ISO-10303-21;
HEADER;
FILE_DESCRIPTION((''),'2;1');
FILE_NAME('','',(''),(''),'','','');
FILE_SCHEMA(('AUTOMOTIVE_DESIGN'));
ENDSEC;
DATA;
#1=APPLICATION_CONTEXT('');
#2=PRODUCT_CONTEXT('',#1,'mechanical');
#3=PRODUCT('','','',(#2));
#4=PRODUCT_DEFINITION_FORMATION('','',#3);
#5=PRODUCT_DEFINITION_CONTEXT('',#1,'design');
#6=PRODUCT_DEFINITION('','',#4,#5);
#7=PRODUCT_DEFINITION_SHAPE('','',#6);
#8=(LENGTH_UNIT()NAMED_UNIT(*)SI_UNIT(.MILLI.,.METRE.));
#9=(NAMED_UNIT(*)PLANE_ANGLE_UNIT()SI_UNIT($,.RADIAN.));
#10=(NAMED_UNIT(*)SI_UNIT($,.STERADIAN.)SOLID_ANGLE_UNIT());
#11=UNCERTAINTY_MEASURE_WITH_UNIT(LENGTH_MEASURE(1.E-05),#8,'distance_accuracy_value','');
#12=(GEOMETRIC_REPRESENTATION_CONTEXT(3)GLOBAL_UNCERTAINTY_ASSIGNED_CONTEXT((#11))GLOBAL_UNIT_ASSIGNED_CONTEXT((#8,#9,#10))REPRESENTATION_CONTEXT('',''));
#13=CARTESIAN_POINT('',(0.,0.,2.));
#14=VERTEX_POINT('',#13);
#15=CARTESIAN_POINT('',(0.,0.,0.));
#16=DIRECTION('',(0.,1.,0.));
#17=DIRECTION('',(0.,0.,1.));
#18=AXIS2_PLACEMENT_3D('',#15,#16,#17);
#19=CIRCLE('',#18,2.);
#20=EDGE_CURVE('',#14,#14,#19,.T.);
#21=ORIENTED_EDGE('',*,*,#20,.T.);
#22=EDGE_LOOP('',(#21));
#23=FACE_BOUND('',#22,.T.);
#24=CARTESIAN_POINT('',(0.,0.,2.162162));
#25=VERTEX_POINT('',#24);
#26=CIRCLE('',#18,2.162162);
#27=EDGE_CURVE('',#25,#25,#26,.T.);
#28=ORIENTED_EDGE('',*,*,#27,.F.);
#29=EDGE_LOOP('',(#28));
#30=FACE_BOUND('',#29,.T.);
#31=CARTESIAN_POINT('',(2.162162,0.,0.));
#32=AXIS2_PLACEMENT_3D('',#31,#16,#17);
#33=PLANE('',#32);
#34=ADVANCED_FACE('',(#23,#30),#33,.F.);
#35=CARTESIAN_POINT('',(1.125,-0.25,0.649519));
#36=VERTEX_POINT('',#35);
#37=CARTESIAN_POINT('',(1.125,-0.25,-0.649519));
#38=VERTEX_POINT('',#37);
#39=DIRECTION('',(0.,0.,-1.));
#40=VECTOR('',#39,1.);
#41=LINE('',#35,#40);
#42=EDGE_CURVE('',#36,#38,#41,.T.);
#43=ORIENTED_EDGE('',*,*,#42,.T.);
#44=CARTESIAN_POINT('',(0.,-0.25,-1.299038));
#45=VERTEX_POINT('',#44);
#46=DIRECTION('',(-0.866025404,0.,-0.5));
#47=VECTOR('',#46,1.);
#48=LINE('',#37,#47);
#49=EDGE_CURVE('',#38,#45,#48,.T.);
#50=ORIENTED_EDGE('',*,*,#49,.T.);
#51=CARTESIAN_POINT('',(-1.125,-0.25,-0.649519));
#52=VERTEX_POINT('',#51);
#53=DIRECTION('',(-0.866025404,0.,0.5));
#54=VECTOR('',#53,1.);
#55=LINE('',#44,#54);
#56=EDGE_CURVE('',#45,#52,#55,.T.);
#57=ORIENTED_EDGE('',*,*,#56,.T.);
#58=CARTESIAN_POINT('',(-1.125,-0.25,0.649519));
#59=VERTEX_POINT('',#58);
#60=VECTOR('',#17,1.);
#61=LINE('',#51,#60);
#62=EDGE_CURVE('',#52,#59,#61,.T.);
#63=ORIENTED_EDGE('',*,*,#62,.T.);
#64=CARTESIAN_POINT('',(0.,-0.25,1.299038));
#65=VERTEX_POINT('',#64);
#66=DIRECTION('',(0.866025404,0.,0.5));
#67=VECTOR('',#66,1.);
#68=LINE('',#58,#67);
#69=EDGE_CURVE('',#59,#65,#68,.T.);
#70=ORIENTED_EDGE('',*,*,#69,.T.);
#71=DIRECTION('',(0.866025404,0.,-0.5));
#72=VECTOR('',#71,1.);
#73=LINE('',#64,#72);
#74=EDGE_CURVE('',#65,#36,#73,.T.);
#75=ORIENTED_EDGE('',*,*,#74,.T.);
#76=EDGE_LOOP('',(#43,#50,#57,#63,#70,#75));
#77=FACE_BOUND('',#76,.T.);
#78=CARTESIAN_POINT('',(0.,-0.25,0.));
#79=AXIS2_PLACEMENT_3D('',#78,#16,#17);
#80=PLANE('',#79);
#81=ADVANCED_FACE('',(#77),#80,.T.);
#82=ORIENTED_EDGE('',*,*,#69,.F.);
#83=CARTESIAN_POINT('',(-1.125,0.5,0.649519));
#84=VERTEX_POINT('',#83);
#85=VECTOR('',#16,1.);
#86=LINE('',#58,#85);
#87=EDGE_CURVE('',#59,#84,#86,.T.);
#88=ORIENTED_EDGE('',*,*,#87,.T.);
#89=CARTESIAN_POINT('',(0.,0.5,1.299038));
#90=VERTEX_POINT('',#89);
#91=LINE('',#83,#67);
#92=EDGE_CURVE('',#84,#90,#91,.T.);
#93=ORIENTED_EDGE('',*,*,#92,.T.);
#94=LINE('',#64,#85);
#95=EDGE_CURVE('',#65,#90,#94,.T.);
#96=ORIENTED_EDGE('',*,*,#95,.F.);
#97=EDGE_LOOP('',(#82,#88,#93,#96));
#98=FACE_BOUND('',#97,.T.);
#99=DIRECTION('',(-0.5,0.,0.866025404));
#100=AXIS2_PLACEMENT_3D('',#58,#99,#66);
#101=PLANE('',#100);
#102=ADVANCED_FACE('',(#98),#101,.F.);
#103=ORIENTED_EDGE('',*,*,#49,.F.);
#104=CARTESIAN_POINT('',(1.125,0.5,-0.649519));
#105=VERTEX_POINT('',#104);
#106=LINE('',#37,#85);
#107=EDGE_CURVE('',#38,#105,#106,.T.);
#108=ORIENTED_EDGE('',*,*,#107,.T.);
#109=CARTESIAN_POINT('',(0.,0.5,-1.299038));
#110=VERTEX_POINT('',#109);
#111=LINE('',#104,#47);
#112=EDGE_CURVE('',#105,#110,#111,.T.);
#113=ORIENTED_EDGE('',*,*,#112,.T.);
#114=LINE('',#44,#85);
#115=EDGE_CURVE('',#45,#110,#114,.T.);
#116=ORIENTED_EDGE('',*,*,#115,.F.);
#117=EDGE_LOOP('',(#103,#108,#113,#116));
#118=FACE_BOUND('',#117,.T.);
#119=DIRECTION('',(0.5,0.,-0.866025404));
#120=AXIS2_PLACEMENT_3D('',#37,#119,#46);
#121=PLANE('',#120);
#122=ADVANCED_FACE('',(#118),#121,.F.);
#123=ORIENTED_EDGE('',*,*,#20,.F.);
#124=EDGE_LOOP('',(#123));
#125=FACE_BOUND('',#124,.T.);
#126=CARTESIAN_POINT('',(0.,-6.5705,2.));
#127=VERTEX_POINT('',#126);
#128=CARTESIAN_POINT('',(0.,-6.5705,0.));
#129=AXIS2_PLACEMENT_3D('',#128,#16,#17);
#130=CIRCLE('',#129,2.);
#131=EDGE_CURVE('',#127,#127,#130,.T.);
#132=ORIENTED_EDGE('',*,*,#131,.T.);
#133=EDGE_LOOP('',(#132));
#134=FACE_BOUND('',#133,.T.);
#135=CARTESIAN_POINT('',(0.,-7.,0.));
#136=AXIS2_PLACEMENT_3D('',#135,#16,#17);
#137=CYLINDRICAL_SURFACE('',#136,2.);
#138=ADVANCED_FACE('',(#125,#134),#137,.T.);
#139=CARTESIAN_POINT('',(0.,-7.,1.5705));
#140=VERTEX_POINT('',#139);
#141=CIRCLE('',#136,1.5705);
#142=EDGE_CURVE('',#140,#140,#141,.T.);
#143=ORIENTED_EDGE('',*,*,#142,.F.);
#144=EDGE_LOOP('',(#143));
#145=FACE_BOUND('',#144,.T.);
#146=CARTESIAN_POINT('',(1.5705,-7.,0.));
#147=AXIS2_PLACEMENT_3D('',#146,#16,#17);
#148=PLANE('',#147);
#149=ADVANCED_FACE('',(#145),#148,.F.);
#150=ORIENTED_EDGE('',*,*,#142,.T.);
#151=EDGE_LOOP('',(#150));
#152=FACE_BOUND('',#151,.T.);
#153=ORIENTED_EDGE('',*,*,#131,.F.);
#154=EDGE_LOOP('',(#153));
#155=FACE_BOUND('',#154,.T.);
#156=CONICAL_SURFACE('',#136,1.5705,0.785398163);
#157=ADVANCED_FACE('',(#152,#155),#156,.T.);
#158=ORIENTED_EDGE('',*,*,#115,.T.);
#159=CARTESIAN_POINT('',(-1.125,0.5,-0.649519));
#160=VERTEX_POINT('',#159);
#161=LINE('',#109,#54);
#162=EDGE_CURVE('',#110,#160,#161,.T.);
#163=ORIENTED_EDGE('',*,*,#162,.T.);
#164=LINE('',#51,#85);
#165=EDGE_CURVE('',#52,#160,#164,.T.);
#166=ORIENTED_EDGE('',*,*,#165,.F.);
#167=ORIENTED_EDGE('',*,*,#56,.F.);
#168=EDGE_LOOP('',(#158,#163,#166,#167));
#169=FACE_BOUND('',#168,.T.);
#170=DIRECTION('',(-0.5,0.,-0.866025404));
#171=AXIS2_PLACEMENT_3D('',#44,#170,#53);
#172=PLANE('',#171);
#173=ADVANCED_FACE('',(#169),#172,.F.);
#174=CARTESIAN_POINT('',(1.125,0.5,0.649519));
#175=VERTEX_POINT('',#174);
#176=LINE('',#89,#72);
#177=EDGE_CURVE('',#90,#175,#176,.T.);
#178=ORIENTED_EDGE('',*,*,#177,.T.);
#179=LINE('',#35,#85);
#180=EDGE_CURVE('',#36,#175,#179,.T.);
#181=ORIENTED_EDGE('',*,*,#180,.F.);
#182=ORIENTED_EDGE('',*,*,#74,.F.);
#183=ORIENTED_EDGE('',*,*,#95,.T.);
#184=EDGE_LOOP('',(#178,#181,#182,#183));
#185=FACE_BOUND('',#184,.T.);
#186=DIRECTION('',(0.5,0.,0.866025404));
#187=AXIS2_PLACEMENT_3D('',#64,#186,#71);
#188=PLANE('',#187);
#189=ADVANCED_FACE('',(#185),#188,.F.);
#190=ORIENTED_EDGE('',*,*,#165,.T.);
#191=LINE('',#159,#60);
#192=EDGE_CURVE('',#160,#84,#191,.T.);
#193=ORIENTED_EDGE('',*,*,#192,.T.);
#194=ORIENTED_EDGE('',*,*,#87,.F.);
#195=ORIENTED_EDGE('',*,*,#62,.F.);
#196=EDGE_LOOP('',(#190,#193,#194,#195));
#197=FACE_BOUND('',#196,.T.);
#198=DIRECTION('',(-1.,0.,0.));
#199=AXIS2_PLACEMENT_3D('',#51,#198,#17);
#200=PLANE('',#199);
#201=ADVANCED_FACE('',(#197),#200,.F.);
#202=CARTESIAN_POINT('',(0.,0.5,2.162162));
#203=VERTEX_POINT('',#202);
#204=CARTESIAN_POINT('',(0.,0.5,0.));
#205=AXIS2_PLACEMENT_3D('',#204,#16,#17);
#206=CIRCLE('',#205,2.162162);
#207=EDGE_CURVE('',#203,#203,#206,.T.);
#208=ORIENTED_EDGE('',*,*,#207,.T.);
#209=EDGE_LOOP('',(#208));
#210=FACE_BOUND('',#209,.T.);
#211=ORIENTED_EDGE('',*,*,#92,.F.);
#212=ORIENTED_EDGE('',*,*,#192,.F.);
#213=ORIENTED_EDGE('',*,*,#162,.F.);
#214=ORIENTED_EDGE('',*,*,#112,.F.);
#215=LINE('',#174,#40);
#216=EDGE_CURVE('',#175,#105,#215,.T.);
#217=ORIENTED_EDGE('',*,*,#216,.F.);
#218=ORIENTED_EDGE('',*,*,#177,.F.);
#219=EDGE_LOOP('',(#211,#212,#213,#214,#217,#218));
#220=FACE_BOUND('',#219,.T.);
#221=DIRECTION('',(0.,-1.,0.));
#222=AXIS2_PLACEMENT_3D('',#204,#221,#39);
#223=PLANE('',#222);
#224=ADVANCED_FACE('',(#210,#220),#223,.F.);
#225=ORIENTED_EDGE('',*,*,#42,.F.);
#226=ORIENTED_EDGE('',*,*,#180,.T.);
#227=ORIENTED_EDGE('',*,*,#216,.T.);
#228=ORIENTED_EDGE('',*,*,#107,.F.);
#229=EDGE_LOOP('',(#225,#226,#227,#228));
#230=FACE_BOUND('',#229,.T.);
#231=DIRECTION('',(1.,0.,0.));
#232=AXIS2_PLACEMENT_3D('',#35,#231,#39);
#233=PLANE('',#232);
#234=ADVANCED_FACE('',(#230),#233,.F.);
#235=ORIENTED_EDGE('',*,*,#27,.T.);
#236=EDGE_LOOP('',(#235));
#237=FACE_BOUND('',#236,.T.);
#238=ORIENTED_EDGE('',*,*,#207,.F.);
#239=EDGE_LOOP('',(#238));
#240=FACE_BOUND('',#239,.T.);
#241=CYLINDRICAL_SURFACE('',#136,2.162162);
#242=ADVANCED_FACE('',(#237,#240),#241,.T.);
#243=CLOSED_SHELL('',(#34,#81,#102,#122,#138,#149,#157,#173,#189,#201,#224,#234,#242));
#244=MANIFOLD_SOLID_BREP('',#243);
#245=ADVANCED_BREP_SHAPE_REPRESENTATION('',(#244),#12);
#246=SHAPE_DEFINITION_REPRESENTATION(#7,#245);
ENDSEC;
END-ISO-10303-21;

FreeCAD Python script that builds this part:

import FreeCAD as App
import Part
import Sketcher

V = App.Vector
Q = App.Units.Quantity

doc = App.newDocument("Part")
body = doc.addObject("PartDesign::Body", "Body")

sketch1 = body.newObject("Sketcher::SketchObject", "Sketch")
sketch1.AttachmentSupport = (doc.getObject("XY_Plane"), [""])
sketch1.MapMode = "FlatFace"
sketch1.addGeometry([
    Part.LineSegment(V(2.162162, 0.5, 0), V(0, 0.5, 0)),
    Part.LineSegment(V(0, 0.5, 0), V(0, -7, 0)),
    Part.LineSegment(V(0, -7, 0), V(1.5705, -7, 0)),
    Part.LineSegment(V(1.5705, -7, 0), V(2, -6.5705, 0)),
    Part.LineSegment(V(2, -6.5705, 0), V(2, 0, 0)),
    Part.LineSegment(V(2, 0, 0), V(2.162162, 0, 0)),
    Part.LineSegment(V(2.162162, 0, 0), V(2.162162, 0.5, 0)),
], False)
sketch1.addConstraint([
    Sketcher.Constraint("Coincident", 0, 2, 1, 1),
    Sketcher.Constraint("Coincident", 1, 2, 2, 1),
    Sketcher.Constraint("Coincident", 2, 2, 3, 1),
    Sketcher.Constraint("Coincident", 3, 2, 4, 1),
    Sketcher.Constraint("Coincident", 4, 2, 5, 1),
    Sketcher.Constraint("Coincident", 5, 2, 6, 1),
    Sketcher.Constraint("Coincident", 6, 2, 0, 1),
    Sketcher.Constraint("Horizontal", 0),
    Sketcher.Constraint("Vertical", 1),
    Sketcher.Constraint("Horizontal", 2),
    Sketcher.Constraint("Vertical", 4),
    Sketcher.Constraint("Horizontal", 5),
    Sketcher.Constraint("Vertical", 6),
    Sketcher.Constraint("PointOnObject", 0, 2, -2),
    Sketcher.Constraint("PointOnObject", 4, 2, -1),
    Sketcher.Constraint("Angle", 3, Q("45 deg")),
    Sketcher.Constraint("DistanceY", 1, 2, 1, 1, 7.5),
    Sketcher.Constraint("DistanceY", 6, 1, 6, 2, 0.5),
    Sketcher.Constraint("DistanceX", -1, 1, 3, 2, 2.0),
    Sketcher.Constraint("DistanceX", 2, 1, 2, 2, 1.5705),
    Sketcher.Constraint("DistanceX", 0, 2, 0, 1, 2.162162),
])
revolution = body.newObject("PartDesign::Revolution", "Revolution")
revolution.Profile = sketch1
revolution.ReferenceAxis = (sketch1, ["V_Axis"])
revolution.Angle = 360

sketch2 = body.newObject("Sketcher::SketchObject", "Sketch001")
sketch2.AttachmentSupport = (doc.getObject("XZ_Plane"), [""])
sketch2.MapMode = "FlatFace"
sketch2.AttachmentOffset = App.Placement(V(0, 0, -0.5), App.Rotation())
sketch2.addGeometry([
    Part.LineSegment(V(-1.125, -0.649519, 0), V(-1.125, 0.649519, 0)),
    Part.LineSegment(V(-1.125, 0.649519, 0), V(0, 1.299038, 0)),
    Part.LineSegment(V(0, 1.299038, 0), V(1.125, 0.649519, 0)),
    Part.LineSegment(V(1.125, 0.649519, 0), V(1.125, -0.649519, 0)),
    Part.LineSegment(V(1.125, -0.649519, 0), V(0, -1.299038, 0)),
    Part.LineSegment(V(0, -1.299038, 0), V(-1.125, -0.649519, 0)),
], False)
sketch2.addConstraint([
    Sketcher.Constraint("Coincident", 0, 2, 1, 1),
    Sketcher.Constraint("Coincident", 1, 2, 2, 1),
    Sketcher.Constraint("Coincident", 2, 2, 3, 1),
    Sketcher.Constraint("Coincident", 3, 2, 4, 1),
    Sketcher.Constraint("Coincident", 4, 2, 5, 1),
    Sketcher.Constraint("Coincident", 5, 2, 0, 1),
    Sketcher.Constraint("Vertical", 0),
    Sketcher.Constraint("Vertical", 3),
    Sketcher.Constraint("Symmetric", 0, 2, 3, 2, -1, 1),
    Sketcher.Constraint("Symmetric", 1, 2, 4, 2, -1, 1),
    Sketcher.Constraint("PointOnObject", 1, 2, -2),
    Sketcher.Constraint("Parallel", 2, 5),
    Sketcher.Constraint("Horizontal", 0, 2, 2, 2),
    Sketcher.Constraint("Angle", 1, Q("30 deg")),
    Sketcher.Constraint("DistanceX", 0, 2, 2, 2, 2.25),
    Sketcher.Constraint("DistanceY", 0, 1, 0, 2, 1.299038),
])
pocket1 = body.newObject("PartDesign::Pocket", "Pocket")
pocket1.Profile = sketch2
pocket1.Length = 0.75
pocket1.Reversed = True

doc.recompute()
